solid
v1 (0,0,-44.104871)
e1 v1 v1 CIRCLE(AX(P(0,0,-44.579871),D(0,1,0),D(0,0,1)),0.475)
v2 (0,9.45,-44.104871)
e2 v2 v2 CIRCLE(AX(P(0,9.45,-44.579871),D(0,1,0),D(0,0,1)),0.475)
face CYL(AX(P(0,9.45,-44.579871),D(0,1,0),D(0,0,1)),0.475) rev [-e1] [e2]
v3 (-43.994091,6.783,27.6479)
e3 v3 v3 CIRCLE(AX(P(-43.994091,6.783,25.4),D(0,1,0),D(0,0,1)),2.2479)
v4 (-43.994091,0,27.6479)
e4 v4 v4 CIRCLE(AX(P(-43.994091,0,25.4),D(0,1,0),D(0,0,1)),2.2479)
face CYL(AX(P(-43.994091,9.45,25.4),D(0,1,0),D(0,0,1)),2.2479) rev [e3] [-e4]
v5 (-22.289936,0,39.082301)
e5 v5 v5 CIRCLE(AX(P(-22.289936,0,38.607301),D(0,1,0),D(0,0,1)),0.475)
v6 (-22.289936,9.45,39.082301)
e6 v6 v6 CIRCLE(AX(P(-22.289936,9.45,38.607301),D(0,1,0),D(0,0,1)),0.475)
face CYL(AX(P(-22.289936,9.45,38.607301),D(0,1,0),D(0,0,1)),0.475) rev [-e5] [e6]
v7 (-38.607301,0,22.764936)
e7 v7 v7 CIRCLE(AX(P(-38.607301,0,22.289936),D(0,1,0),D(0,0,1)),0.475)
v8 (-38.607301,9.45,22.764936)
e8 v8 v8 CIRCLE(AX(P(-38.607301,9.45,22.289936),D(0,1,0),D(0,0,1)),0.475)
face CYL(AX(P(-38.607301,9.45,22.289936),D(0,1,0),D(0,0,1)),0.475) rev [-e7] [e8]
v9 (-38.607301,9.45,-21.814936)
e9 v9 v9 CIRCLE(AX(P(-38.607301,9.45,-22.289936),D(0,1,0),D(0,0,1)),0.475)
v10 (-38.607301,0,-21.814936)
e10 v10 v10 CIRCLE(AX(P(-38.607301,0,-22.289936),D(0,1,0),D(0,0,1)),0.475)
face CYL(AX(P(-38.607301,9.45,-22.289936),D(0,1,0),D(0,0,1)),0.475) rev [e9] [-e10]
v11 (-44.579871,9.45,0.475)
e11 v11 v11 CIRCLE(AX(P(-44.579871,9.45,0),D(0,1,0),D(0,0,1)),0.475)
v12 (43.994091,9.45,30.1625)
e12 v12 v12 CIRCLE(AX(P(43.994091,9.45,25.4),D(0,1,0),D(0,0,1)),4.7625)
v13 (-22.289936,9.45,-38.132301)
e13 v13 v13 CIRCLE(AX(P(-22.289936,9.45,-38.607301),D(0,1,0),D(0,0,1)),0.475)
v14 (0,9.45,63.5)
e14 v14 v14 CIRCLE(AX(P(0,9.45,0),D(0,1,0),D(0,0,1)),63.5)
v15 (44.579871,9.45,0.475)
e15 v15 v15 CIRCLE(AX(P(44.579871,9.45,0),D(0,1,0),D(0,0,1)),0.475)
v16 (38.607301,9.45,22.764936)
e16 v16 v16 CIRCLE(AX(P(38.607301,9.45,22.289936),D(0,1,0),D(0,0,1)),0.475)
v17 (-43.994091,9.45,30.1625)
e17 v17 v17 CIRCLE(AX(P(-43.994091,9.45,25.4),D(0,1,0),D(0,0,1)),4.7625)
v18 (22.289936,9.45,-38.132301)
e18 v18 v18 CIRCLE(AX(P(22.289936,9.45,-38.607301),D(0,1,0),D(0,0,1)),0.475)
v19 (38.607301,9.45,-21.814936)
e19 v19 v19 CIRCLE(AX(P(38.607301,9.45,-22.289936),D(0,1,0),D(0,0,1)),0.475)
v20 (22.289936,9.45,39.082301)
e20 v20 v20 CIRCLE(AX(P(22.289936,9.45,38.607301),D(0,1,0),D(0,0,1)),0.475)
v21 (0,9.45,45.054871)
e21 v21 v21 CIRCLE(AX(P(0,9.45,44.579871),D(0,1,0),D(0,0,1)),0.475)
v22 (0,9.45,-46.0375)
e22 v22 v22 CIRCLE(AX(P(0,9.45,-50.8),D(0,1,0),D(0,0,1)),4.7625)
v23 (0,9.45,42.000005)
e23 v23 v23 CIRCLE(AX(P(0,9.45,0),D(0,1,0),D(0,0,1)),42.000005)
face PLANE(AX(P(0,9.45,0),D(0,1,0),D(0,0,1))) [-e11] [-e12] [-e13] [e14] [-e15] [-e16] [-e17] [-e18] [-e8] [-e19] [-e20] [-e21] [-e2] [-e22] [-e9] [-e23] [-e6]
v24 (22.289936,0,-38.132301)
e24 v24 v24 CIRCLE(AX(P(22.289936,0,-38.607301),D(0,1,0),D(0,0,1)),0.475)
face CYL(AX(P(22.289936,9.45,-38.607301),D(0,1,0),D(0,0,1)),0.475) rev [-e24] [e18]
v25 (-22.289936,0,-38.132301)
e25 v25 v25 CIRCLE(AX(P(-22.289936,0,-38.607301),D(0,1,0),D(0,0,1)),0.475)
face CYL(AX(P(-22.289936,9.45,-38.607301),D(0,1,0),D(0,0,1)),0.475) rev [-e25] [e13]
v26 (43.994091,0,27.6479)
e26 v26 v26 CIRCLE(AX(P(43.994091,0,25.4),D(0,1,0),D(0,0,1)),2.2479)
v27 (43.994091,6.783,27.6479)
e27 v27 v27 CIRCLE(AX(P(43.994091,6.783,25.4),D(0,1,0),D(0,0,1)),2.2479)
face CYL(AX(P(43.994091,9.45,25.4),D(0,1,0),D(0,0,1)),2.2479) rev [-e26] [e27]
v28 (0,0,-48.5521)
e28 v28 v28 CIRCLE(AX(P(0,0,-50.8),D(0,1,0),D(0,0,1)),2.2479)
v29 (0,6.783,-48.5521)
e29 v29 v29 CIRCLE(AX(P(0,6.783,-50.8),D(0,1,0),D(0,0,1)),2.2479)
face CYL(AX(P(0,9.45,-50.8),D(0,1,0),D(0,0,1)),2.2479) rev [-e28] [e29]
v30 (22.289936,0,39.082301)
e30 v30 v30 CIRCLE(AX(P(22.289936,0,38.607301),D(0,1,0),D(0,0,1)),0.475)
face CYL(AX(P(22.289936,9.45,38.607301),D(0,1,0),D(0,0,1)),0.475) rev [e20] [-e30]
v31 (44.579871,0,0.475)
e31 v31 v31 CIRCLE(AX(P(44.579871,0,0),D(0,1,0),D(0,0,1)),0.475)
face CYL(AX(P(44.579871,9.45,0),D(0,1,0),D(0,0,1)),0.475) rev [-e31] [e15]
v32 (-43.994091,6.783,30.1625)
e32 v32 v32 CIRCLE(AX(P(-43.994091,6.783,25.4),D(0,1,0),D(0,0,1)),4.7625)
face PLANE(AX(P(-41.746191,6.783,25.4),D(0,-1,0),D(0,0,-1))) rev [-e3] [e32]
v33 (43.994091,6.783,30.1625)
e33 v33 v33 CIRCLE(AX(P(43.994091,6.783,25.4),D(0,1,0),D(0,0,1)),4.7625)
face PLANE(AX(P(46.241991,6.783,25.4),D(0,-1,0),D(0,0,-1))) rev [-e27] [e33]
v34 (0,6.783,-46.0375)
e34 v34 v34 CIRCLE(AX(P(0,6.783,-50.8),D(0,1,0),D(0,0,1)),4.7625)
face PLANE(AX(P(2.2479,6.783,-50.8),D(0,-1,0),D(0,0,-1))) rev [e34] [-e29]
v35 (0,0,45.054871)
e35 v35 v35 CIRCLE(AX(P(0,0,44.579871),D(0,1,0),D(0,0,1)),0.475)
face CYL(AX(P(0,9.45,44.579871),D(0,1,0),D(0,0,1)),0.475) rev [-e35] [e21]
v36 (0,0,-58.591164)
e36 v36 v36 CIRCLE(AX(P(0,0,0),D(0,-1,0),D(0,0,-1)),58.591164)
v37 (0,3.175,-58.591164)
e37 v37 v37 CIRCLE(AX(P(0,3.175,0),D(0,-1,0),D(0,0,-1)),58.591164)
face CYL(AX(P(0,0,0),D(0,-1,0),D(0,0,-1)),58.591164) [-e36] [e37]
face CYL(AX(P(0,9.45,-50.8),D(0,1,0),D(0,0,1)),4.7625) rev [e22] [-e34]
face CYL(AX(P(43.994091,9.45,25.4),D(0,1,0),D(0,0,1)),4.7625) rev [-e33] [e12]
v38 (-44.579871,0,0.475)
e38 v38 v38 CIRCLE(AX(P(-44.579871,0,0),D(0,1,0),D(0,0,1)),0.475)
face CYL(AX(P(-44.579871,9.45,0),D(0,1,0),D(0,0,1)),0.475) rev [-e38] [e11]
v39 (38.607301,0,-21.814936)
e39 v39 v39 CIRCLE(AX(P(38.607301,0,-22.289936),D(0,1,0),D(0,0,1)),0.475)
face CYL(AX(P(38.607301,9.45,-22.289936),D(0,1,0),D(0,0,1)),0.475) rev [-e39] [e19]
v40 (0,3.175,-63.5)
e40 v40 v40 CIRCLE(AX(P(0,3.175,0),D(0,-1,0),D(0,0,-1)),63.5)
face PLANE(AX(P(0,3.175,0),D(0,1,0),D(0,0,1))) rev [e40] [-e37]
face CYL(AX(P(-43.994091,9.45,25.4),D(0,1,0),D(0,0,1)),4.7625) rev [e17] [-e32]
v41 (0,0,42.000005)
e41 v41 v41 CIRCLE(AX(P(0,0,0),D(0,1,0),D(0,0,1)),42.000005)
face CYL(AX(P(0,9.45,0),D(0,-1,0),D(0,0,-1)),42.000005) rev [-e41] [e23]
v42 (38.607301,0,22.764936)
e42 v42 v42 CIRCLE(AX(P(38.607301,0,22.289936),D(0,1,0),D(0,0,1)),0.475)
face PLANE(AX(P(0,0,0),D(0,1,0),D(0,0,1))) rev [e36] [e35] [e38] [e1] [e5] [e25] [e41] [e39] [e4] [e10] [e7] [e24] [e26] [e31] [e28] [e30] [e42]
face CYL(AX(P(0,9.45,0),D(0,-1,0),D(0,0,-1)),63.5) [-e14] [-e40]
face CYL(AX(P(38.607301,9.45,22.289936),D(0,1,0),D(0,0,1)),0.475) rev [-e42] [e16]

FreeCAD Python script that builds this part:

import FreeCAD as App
import Part
import Sketcher

V = App.Vector
Q = App.Units.Quantity

doc = App.newDocument("Part")
body = doc.addObject("PartDesign::Body", "Body")

# Sketch on XZ plane
sketch1 = doc.addObject("Sketcher::SketchObject", "Sketch")
body.addObject(sketch1)
sketch1.AttachmentSupport = (doc.XZ_Plane, [""])
sketch1.MapMode = "FlatFace"
sketch1.addGeometry(Part.Circle(V(0, 0, 0), V(0, 0, 1), 63.5), False)
sketch1.addGeometry(Part.Circle(V(0, 0, 0), V(0, 0, 1), 42.000005), False)
sketch1.addConstraint(Sketcher.Constraint("Coincident", 0, 3, -1, 1))
sketch1.addConstraint(Sketcher.Constraint("Coincident", 1, 3, -1, 1))
sketch1.addConstraint(Sketcher.Constraint("Diameter", 0, Q("5 in")))
sketch1.addConstraint(Sketcher.Constraint("Diameter", 1, Q("84.00001 mm")))
pad1 = doc.addObject("PartDesign::Pad", "Pad")
body.addObject(pad1)
pad1.Profile = sketch1
pad1.Length = 9.45
pad1.Reversed = True

# Sketch on XY plane
sketch2 = doc.addObject("Sketcher::SketchObject", "Sketch001")
body.addObject(sketch2)
sketch2.AttachmentSupport = (doc.XY_Plane, [""])
sketch2.MapMode = "FlatFace"
sketch2.addGeometry(Part.LineSegment(V(58.591164, 3.175, 0), V(58.591164, 0, 0)), False)
sketch2.addGeometry(Part.LineSegment(V(58.591164, 0, 0), V(63.5, 0, 0)), False)
sketch2.addGeometry(Part.LineSegment(V(63.5, 0, 0), V(63.5, 3.175, 0)), False)
sketch2.addGeometry(Part.LineSegment(V(63.5, 3.175, 0), V(58.591164, 3.175, 0)), False)
sketch2.addConstraint(Sketcher.Constraint("Coincident", 0, 2, 1, 1))
sketch2.addConstraint(Sketcher.Constraint("Coincident", 1, 2, 2, 1))
sketch2.addConstraint(Sketcher.Constraint("Coincident", 2, 2, 3, 1))
sketch2.addConstraint(Sketcher.Constraint("Coincident", 3, 2, 0, 1))
sketch2.addConstraint(Sketcher.Constraint("Vertical", 0))
sketch2.addConstraint(Sketcher.Constraint("Horizontal", 1))
sketch2.addConstraint(Sketcher.Constraint("Vertical", 2))
sketch2.addConstraint(Sketcher.Constraint("Horizontal", 3))
sketch2.addConstraint(Sketcher.Constraint("PointOnObject", 0, 2, -1))
sketch2.addConstraint(Sketcher.Constraint("DistanceX", -1, 1, 1, 2, Q("2.5 in")))
sketch2.addConstraint(Sketcher.Constraint("DistanceY", 0, 2, 0, 1, Q("0.125 in")))
sketch2.addConstraint(Sketcher.Constraint("DistanceX", 1, 1, 1, 2, Q("4.908836 mm")))
groove = doc.addObject("PartDesign::Groove", "Groove")
body.addObject(groove)
groove.Profile = sketch2
groove.ReferenceAxis = (sketch2, ["V_Axis"])
groove.Angle = 360

# Sketch on YZ plane
sketch3 = doc.addObject("Sketcher::SketchObject", "Sketch002")
body.addObject(sketch3)
sketch3.AttachmentSupport = (doc.YZ_Plane, [""])
sketch3.MapMode = "FlatFace"
sketch3.addGeometry(Part.LineSegment(V(-493.550675, -50.8, 0), V(9.45, -50.8, 0)), False)
sketch3.addGeometry(Part.LineSegment(V(9.45, -50.8, 0), V(9.45, -46.0375, 0)), False)
sketch3.addGeometry(Part.LineSegment(V(9.45, -46.0375, 0), V(6.783, -46.0375, 0)), False)
sketch3.addGeometry(Part.LineSegment(V(6.783, -46.0375, 0), V(6.783, -48.5521, 0)), False)
sketch3.addGeometry(Part.LineSegment(V(6.783, -48.5521, 0), V(-492.2, -48.5521, 0)), False)
sketch3.addGeometry(Part.LineSegment(V(-492.2, -48.5521, 0), V(-493.550675, -50.8, 0)), False)
sketch3.addGeometry(Part.LineSegment(V(9.45, -50.8, 0), V(-493.550675, -50.8, 0)), True)  # axis
sketch3.addConstraint(Sketcher.Constraint("Coincident", 0, 2, 1, 1))
sketch3.addConstraint(Sketcher.Constraint("Coincident", 1, 2, 2, 1))
sketch3.addConstraint(Sketcher.Constraint("Coincident", 2, 2, 3, 1))
sketch3.addConstraint(Sketcher.Constraint("Coincident", 3, 2, 4, 1))
sketch3.addConstraint(Sketcher.Constraint("Coincident", 4, 2, 5, 1))
sketch3.addConstraint(Sketcher.Constraint("Coincident", 5, 2, 0, 1))
sketch3.addConstraint(Sketcher.Constraint("Horizontal", 0))
sketch3.addConstraint(Sketcher.Constraint("Vertical", 1))
sketch3.addConstraint(Sketcher.Constraint("Horizontal", 2))
sketch3.addConstraint(Sketcher.Constraint("Vertical", 3))
sketch3.addConstraint(Sketcher.Constraint("Horizontal", 4))
sketch3.addConstraint(Sketcher.Constraint("Horizontal", 6))
sketch3.addConstraint(Sketcher.Constraint("Coincident", 6, 1, 0, 2))
sketch3.addConstraint(Sketcher.Constraint("Equal", 0, 6))
sketch3.addConstraint(Sketcher.Constraint("DistanceY", 0, 2, -1, 1, Q("2 in")))
sketch3.addConstraint(Sketcher.Constraint("Angle", 5, Q("-121 deg")))
sketch3.addConstraint(Sketcher.Constraint("DistanceX", 2, 2, 2, 1, Q("0.105 in")))
sketch3.addConstraint(Sketcher.Constraint("DistanceX", 4, 2, 4, 1, Q("19.645 in")))
sketch3.addConstraint(Sketcher.Constraint("DistanceY", 1, 1, 1, 2, Q("0.1875 in")))
sketch3.addConstraint(Sketcher.Constraint("DistanceY", 3, 2, 3, 1, Q("0.099 in")))
sketch3.addConstraint(Sketcher.Constraint("DistanceX", -1, 1, 0, 2, Q("9.45 mm")))
groove2 = doc.addObject("PartDesign::Groove", "Groove001")
body.addObject(groove2)
groove2.Profile = sketch3
groove2.ReferenceAxis = (sketch3, ["Axis0"])
groove2.Angle = 360
doc.recompute()

polarpattern = doc.addObject("PartDesign::PolarPattern", "PolarPattern")
body.addObject(polarpattern)
polarpattern.Originals = [groove2]
polarpattern.Axis = (doc.Y_Axis, [""])
polarpattern.Angle = 360
polarpattern.Occurrences = 3
body.Tip = polarpattern

# Sketch on XZ plane
sketch4 = doc.addObject("Sketcher::SketchObject", "Sketch003")
body.addObject(sketch4)
sketch4.AttachmentSupport = (doc.XZ_Plane, [""])
sketch4.MapMode = "FlatFace"
sketch4.AttachmentOffset = App.Placement(V(0, 0, -9.45), App.Rotation())
sketch4.addGeometry(Part.Circle(V(0, -44.579871, 0), V(0, 0, 1), 0.475), False)
sketch4.addConstraint(Sketcher.Constraint("PointOnObject", 0, 3, -2))
sketch4.addConstraint(Sketcher.Constraint("Diameter", 0, Q("0.95 mm")))
sketch4.addConstraint(Sketcher.Constraint("DistanceY", 0, 3, -1, 1, Q("44.579871 mm")))
doc.recompute()
hole = doc.addObject("PartDesign::Hole", "Hole")
body.addObject(hole)
hole.Profile = sketch4
hole.ThreadType = "None"
hole.Diameter = 0.95
hole.DepthType = "ThroughAll"
hole.Reversed = True
doc.recompute()

polarpattern2 = doc.addObject("PartDesign::PolarPattern", "PolarPattern001")
body.addObject(polarpattern2)
polarpattern2.Originals = [hole]
polarpattern2.Axis = (doc.Y_Axis, [""])
polarpattern2.Angle = 360
polarpattern2.Occurrences = 12
body.Tip = polarpattern2

doc.recompute()
